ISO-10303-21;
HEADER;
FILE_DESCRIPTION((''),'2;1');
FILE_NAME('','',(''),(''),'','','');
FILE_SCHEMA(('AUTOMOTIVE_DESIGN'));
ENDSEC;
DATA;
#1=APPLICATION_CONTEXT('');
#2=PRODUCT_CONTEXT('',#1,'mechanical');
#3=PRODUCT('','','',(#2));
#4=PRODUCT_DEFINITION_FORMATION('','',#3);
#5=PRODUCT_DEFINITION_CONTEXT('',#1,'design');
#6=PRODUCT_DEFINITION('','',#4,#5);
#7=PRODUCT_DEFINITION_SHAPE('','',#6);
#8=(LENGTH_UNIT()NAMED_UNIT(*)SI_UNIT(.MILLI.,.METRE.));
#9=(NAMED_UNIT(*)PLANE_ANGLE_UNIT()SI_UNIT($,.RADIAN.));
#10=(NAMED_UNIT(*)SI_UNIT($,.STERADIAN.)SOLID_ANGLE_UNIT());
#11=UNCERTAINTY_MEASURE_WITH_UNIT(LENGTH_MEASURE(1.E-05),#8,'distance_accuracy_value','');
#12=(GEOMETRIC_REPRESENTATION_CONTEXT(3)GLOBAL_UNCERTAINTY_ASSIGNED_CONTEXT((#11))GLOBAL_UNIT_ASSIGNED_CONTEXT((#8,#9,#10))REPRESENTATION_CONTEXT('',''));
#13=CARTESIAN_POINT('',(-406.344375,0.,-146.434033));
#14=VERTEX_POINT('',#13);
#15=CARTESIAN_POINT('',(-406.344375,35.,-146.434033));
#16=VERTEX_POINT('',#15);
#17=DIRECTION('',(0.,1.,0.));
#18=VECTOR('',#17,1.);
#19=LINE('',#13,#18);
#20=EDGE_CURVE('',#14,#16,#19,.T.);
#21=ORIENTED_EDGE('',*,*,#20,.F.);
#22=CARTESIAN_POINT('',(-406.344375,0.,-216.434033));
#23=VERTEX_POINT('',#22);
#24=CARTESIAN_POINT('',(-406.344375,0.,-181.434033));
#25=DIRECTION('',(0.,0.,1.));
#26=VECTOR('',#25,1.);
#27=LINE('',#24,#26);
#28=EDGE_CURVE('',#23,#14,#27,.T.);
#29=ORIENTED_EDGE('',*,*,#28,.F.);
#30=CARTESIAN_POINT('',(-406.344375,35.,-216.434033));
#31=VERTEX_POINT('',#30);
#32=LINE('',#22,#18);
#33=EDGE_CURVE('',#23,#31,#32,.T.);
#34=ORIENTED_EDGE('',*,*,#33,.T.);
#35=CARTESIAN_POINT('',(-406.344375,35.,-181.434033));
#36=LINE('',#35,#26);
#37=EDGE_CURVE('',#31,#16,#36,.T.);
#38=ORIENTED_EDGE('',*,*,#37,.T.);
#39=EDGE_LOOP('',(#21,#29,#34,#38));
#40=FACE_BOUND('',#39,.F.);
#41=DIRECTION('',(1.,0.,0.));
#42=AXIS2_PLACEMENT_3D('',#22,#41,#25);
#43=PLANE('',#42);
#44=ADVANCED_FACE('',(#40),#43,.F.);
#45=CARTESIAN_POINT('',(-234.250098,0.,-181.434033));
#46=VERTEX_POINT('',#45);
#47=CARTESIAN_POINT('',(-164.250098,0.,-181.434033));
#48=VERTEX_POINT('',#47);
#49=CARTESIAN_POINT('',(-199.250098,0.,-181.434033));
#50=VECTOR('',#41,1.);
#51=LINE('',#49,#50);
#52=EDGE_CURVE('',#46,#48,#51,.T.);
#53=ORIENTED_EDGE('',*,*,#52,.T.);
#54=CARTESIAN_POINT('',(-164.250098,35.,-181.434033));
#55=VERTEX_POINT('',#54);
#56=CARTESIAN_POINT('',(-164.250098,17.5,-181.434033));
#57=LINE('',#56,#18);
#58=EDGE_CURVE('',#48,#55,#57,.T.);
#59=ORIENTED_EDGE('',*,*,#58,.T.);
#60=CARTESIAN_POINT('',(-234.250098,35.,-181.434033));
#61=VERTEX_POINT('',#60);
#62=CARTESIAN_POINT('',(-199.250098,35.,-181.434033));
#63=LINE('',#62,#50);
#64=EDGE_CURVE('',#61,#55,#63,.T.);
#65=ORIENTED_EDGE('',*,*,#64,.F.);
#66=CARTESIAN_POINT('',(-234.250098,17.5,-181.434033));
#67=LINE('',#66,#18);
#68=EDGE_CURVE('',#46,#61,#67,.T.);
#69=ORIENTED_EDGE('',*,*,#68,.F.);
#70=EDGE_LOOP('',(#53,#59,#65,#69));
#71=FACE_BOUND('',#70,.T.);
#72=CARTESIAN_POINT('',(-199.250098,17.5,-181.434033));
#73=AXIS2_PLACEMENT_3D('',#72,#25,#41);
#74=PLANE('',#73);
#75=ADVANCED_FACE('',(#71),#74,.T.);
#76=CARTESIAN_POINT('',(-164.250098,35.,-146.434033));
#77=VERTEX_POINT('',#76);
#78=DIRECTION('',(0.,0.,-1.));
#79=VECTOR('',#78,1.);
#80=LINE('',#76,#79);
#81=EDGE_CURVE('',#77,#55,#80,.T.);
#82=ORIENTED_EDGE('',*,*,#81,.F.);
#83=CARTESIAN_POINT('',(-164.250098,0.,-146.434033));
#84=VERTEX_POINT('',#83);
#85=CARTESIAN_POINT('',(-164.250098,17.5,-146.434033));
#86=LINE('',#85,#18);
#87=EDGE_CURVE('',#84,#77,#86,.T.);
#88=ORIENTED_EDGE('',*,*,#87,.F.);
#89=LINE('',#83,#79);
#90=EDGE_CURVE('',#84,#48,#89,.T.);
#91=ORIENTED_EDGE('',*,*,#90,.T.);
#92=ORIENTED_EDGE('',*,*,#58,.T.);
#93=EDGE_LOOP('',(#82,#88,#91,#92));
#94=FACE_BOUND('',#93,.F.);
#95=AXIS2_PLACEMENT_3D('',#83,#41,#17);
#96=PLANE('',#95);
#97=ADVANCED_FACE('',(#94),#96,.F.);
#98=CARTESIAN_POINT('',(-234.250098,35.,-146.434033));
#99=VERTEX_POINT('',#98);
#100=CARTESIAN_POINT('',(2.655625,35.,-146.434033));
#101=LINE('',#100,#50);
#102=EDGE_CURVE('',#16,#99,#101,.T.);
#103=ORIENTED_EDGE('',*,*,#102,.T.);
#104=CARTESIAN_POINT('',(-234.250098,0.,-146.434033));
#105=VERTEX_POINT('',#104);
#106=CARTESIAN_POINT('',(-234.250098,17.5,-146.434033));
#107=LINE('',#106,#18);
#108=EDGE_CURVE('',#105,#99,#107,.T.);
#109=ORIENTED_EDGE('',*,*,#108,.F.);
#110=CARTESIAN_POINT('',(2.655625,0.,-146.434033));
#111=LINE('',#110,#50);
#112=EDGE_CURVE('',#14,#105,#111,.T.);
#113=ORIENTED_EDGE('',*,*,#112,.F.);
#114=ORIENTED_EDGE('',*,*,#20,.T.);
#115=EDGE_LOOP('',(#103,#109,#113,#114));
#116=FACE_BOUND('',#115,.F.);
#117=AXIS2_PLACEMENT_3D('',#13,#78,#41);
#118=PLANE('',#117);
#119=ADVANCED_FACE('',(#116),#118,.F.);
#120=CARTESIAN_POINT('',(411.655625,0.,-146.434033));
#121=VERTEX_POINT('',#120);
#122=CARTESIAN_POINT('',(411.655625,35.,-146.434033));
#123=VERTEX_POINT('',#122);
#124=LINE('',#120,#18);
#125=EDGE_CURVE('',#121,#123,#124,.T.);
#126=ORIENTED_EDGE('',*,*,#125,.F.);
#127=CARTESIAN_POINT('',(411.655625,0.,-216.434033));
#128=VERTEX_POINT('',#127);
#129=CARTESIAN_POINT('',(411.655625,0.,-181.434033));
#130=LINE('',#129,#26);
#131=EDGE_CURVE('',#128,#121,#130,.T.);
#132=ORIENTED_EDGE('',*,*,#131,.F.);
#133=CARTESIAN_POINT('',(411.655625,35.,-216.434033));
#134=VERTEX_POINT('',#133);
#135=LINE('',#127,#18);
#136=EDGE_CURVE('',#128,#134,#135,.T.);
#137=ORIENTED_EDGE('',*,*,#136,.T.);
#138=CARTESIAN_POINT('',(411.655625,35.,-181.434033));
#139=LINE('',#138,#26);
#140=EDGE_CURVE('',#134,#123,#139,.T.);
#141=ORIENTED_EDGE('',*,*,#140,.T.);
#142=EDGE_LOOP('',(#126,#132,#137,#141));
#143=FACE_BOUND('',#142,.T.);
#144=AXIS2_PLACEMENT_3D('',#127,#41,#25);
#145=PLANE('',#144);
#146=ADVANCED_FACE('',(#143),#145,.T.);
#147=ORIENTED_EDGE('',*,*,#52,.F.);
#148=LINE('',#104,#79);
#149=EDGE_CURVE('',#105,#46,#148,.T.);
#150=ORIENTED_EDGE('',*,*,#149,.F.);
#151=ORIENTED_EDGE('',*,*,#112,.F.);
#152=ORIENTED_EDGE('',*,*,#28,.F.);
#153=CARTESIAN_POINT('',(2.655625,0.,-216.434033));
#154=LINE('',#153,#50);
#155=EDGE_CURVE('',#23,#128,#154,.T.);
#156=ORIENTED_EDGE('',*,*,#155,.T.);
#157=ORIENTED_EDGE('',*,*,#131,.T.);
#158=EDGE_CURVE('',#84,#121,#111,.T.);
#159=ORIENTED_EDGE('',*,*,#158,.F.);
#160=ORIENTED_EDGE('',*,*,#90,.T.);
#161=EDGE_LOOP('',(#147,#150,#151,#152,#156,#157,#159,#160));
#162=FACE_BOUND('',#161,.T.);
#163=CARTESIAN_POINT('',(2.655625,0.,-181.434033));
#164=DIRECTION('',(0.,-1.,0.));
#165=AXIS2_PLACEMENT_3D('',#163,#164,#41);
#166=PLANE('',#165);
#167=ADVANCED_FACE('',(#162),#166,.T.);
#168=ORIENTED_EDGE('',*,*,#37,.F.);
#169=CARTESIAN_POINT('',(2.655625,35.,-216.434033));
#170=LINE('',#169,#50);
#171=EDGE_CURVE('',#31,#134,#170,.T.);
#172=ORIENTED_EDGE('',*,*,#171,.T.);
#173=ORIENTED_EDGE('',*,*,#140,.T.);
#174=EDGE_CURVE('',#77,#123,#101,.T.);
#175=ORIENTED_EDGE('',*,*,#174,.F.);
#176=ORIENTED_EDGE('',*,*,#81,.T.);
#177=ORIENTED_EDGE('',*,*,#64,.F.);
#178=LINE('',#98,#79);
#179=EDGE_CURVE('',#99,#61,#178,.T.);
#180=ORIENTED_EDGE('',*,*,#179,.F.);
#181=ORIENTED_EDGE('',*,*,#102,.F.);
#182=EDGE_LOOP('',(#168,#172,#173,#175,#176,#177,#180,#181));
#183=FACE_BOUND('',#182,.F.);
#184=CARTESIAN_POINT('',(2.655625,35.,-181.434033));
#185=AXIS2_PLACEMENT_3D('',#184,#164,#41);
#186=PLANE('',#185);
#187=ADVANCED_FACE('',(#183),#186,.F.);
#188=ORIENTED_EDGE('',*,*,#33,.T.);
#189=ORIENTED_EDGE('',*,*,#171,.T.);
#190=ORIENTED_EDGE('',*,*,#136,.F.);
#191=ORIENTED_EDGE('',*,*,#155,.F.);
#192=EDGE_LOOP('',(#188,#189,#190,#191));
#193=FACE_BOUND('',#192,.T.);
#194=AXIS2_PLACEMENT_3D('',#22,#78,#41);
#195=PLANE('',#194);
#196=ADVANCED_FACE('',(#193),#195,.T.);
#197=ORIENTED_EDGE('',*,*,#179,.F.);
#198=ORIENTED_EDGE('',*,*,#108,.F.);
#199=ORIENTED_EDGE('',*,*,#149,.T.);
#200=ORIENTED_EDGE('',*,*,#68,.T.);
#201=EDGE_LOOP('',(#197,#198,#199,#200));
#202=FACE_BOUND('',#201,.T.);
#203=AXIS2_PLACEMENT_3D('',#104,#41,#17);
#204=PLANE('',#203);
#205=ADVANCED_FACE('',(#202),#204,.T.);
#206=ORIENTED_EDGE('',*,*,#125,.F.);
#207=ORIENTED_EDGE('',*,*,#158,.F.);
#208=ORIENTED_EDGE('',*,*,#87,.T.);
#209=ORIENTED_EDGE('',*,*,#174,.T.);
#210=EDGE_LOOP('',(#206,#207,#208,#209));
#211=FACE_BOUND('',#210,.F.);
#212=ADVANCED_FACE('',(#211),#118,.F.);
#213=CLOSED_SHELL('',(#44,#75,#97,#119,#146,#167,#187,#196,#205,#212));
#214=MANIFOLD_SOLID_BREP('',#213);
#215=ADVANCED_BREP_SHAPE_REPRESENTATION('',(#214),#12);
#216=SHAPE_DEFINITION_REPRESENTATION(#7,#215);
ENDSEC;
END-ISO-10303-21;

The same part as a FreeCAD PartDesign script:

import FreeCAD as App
import Part
import Sketcher
from FreeCAD import Vector

doc = App.newDocument("Part")
params = doc.addObject("Spreadsheet::Sheet", "Params")
for row, (alias, value) in enumerate([
    ("sketch1_width", "818 mm"),
    ("sketch1_height", "70 mm"),
    ("pad1_length", "35 mm"),
    ("sketch2_width", "70 mm"),
    ("sketch2_height", "35 mm"),
    ("pocket1_length", "35 mm"),
], start=1):
    params.set(f"A{row}", alias)
    params.set(f"B{row}", "=" + value)
    params.setAlias(f"B{row}", alias)

body = doc.addObject("PartDesign::Body", "Body")

# Sketch on XZ plane
sketch1 = body.newObject("Sketcher::SketchObject", "Sketch")
sketch1.AttachmentSupport = (doc.getObject("XZ_Plane"), [""])
sketch1.MapMode = "FlatFace"
sketch1.addGeometry([
    Part.LineSegment(Vector(-406.344375, -146.434033, 0), Vector(-406.344375, -216.434033, 0)),
    Part.LineSegment(Vector(-406.344375, -216.434033, 0), Vector(411.655625, -216.434033, 0)),
    Part.LineSegment(Vector(411.655625, -216.434033, 0), Vector(411.655625, -146.434033, 0)),
    Part.LineSegment(Vector(411.655625, -146.434033, 0), Vector(-406.344375, -146.434033, 0)),
], False)
sketch1.addConstraint([
    Sketcher.Constraint("Coincident", 0, 2, 1, 1),
    Sketcher.Constraint("Coincident", 1, 2, 2, 1),
    Sketcher.Constraint("Coincident", 2, 2, 3, 1),
    Sketcher.Constraint("Coincident", 3, 2, 0, 1),
    Sketcher.Constraint("Vertical", 0),
    Sketcher.Constraint("Horizontal", 1),
    Sketcher.Constraint("Vertical", 2),
    Sketcher.Constraint("Horizontal", 3),
    Sketcher.Constraint("DistanceX", 1, 1, 1, 2, 818.0),
    Sketcher.Constraint("DistanceY", 0, 2, 0, 1, 70.0),
    Sketcher.Constraint("DistanceX", 0, 2, -1, 1, 406.344375),
    Sketcher.Constraint("DistanceY", 0, 2, -1, 1, 216.434033),
])
sketch1.setExpression("Constraints[8]", "Params.sketch1_width")
sketch1.setExpression("Constraints[9]", "Params.sketch1_height")
pad1 = body.newObject("PartDesign::Pad", "Pad")
pad1.Profile = sketch1
pad1.setExpression("Length", "Params.pad1_length")
pad1.Reversed = True

# Sketch on XY plane
sketch2 = body.newObject("Sketcher::SketchObject", "Sketch001")
sketch2.AttachmentSupport = (doc.getObject("XY_Plane"), [""])
sketch2.MapMode = "FlatFace"
sketch2.AttachmentOffset = App.Placement(Vector(0, 0, -146.434033), App.Rotation())
sketch2.addGeometry([
    Part.LineSegment(Vector(-234.250098, 35, 0), Vector(-234.250098, 0, 0)),
    Part.LineSegment(Vector(-234.250098, 0, 0), Vector(-164.250098, 0, 0)),
    Part.LineSegment(Vector(-164.250098, 0, 0), Vector(-164.250098, 35, 0)),
    Part.LineSegment(Vector(-164.250098, 35, 0), Vector(-234.250098, 35, 0)),
], False)
sketch2.addConstraint([
    Sketcher.Constraint("Coincident", 0, 2, 1, 1),
    Sketcher.Constraint("Coincident", 1, 2, 2, 1),
    Sketcher.Constraint("Coincident", 2, 2, 3, 1),
    Sketcher.Constraint("Coincident", 3, 2, 0, 1),
    Sketcher.Constraint("Vertical", 0),
    Sketcher.Constraint("Horizontal", 1),
    Sketcher.Constraint("Vertical", 2),
    Sketcher.Constraint("Horizontal", 3),
    Sketcher.Constraint("PointOnObject", 0, 2, -1),
    Sketcher.Constraint("DistanceX", 1, 1, 1, 2, 70.0),
    Sketcher.Constraint("DistanceY", 0, 2, 0, 1, 35.0),
    Sketcher.Constraint("DistanceX", 0, 2, -1, 1, 234.250098),
])
sketch2.setExpression("Constraints[9]", "Params.sketch2_width")
sketch2.setExpression("Constraints[10]", "Params.sketch2_height")
pocket1 = body.newObject("PartDesign::Pocket", "Pocket")
pocket1.Profile = sketch2
pocket1.setExpression("Length", "Params.pocket1_length")

doc.recompute()
